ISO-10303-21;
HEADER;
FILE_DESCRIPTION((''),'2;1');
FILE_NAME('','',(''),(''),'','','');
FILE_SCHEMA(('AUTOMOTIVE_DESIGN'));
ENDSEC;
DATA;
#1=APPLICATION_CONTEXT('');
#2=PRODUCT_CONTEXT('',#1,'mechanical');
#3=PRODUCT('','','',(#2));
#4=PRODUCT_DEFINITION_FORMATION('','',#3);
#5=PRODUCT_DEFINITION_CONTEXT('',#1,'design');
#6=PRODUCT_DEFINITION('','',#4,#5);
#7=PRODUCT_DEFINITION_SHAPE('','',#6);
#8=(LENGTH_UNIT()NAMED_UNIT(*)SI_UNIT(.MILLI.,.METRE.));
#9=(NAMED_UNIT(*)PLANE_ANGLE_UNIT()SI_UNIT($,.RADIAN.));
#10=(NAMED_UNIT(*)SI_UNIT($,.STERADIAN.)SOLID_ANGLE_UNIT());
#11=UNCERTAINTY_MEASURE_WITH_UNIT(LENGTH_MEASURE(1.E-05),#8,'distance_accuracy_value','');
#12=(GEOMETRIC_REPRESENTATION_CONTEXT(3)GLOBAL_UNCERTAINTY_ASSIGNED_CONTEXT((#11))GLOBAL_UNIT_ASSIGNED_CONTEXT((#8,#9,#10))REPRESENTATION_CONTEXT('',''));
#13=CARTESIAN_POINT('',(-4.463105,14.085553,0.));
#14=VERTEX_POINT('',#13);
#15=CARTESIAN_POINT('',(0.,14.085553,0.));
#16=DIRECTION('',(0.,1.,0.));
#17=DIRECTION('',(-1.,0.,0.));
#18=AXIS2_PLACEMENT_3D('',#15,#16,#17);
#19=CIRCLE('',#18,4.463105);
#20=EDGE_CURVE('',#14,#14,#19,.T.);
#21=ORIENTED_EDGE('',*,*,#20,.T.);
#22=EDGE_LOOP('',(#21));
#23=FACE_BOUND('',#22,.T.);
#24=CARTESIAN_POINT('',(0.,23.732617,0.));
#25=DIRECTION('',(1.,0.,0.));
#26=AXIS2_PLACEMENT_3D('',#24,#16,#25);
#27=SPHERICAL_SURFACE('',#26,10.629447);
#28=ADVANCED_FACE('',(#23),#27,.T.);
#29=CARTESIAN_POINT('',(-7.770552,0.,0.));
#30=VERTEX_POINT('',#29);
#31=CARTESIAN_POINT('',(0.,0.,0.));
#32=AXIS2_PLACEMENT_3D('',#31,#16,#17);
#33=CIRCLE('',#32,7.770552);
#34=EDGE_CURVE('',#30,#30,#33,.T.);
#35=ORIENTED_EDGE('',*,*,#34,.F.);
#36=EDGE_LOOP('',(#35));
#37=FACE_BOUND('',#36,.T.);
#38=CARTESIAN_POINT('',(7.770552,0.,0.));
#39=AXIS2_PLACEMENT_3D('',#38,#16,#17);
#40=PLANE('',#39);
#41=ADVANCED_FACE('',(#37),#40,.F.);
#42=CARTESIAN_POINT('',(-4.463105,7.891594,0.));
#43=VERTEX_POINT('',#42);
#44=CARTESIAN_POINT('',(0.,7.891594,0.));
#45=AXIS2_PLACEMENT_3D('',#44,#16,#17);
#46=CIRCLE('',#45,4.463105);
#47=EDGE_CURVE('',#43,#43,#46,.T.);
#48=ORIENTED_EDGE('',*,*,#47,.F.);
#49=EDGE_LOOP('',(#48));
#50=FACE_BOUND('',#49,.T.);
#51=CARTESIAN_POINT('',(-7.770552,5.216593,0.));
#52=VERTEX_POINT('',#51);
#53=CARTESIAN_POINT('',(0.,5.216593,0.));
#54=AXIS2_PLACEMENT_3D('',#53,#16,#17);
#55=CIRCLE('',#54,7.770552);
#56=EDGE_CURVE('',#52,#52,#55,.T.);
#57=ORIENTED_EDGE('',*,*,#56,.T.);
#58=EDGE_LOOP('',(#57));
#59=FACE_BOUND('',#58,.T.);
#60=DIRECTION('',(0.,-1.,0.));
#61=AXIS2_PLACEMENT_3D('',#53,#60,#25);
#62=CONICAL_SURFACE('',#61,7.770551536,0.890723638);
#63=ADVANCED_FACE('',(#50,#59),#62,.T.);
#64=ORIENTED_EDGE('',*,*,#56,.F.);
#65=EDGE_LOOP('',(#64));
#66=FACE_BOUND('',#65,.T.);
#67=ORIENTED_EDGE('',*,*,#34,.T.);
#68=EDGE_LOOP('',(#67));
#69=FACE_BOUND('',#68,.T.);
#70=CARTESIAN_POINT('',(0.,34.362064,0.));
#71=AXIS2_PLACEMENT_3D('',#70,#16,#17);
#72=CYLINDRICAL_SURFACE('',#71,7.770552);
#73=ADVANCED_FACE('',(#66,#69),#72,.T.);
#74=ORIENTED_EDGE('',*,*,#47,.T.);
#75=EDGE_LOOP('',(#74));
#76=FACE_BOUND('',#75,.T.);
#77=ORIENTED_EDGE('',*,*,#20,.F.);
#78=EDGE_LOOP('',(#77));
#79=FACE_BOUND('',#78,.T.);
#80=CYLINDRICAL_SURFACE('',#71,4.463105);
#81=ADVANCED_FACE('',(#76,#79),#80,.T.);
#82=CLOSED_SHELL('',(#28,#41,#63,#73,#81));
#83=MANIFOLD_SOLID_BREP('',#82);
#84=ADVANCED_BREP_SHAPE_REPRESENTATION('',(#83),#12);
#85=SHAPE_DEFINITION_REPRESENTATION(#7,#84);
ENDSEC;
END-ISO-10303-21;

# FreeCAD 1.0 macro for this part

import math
import FreeCAD as App
import Part
import Sketcher

doc = App.newDocument("Part")
body = doc.addObject("PartDesign::Body", "Body")

# Sketch on XY plane
sketch1 = body.newObject("Sketcher::SketchObject", "Sketch")
sketch1.AttachmentSupport = (doc.getObject("XY_Plane"), [""])
sketch1.MapMode = "FlatFace"
sketch1.addGeometry(Part.LineSegment(App.Vector(0, 34.4, 0), App.Vector(0, 0, 0)), False)
sketch1.addGeometry(Part.LineSegment(App.Vector(0, 0, 0), App.Vector(7.8, 0, 0)), False)
sketch1.addGeometry(Part.LineSegment(App.Vector(7.8, 0, 0), App.Vector(7.8, 5.2, 0)), False)
sketch1.addGeometry(Part.LineSegment(App.Vector(7.8, 5.2, 0), App.Vector(4.5, 7.9, 0)), False)
sketch1.addGeometry(Part.LineSegment(App.Vector(4.5, 7.9, 0), App.Vector(4.5, 14.1, 0)), False)
sketch1.addGeometry(Part.ArcOfCircle(Part.Circle(App.Vector(0, 23.7, 0), App.Vector(0, 0, 1), 10.6), math.radians(-65), math.radians(90)), False)
sketch1.addConstraint(Sketcher.Constraint("Coincident", 0, 2, 1, 1))
sketch1.addConstraint(Sketcher.Constraint("Coincident", 1, 2, 2, 1))
sketch1.addConstraint(Sketcher.Constraint("Coincident", 2, 2, 3, 1))
sketch1.addConstraint(Sketcher.Constraint("Coincident", 3, 2, 4, 1))
sketch1.addConstraint(Sketcher.Constraint("Coincident", 4, 2, 5, 1))
sketch1.addConstraint(Sketcher.Constraint("Coincident", 5, 2, 0, 1))
sketch1.addConstraint(Sketcher.Constraint("Vertical", 0))
sketch1.addConstraint(Sketcher.Constraint("Horizontal", 1))
sketch1.addConstraint(Sketcher.Constraint("Vertical", 2))
sketch1.addConstraint(Sketcher.Constraint("Vertical", 4))
sketch1.addConstraint(Sketcher.Constraint("Coincident", 0, 2, -1, 1))
sketch1.addConstraint(Sketcher.Constraint("PointOnObject", 5, 3, -2))
sketch1.addConstraint(Sketcher.Constraint("Radius", 5, 10.629447))
sketch1.addConstraint(Sketcher.Constraint("DistanceY", 2, 2, 3, 2, 2.675002))
sketch1.addConstraint(Sketcher.Constraint("DistanceX", 1, 1, 1, 2, 7.770552))
sketch1.addConstraint(Sketcher.Constraint("DistanceY", 4, 1, 4, 2, 6.193959))
sketch1.addConstraint(Sketcher.Constraint("DistanceY", 0, 2, 0, 1, 34.362064))
sketch1.addConstraint(Sketcher.Constraint("DistanceY", 2, 1, 2, 2, 5.216593))
revolution = body.newObject("PartDesign::Revolution", "Revolution")
revolution.Profile = sketch1
revolution.ReferenceAxis = (sketch1, ["V_Axis"])
revolution.Angle = 360

doc.recompute()
